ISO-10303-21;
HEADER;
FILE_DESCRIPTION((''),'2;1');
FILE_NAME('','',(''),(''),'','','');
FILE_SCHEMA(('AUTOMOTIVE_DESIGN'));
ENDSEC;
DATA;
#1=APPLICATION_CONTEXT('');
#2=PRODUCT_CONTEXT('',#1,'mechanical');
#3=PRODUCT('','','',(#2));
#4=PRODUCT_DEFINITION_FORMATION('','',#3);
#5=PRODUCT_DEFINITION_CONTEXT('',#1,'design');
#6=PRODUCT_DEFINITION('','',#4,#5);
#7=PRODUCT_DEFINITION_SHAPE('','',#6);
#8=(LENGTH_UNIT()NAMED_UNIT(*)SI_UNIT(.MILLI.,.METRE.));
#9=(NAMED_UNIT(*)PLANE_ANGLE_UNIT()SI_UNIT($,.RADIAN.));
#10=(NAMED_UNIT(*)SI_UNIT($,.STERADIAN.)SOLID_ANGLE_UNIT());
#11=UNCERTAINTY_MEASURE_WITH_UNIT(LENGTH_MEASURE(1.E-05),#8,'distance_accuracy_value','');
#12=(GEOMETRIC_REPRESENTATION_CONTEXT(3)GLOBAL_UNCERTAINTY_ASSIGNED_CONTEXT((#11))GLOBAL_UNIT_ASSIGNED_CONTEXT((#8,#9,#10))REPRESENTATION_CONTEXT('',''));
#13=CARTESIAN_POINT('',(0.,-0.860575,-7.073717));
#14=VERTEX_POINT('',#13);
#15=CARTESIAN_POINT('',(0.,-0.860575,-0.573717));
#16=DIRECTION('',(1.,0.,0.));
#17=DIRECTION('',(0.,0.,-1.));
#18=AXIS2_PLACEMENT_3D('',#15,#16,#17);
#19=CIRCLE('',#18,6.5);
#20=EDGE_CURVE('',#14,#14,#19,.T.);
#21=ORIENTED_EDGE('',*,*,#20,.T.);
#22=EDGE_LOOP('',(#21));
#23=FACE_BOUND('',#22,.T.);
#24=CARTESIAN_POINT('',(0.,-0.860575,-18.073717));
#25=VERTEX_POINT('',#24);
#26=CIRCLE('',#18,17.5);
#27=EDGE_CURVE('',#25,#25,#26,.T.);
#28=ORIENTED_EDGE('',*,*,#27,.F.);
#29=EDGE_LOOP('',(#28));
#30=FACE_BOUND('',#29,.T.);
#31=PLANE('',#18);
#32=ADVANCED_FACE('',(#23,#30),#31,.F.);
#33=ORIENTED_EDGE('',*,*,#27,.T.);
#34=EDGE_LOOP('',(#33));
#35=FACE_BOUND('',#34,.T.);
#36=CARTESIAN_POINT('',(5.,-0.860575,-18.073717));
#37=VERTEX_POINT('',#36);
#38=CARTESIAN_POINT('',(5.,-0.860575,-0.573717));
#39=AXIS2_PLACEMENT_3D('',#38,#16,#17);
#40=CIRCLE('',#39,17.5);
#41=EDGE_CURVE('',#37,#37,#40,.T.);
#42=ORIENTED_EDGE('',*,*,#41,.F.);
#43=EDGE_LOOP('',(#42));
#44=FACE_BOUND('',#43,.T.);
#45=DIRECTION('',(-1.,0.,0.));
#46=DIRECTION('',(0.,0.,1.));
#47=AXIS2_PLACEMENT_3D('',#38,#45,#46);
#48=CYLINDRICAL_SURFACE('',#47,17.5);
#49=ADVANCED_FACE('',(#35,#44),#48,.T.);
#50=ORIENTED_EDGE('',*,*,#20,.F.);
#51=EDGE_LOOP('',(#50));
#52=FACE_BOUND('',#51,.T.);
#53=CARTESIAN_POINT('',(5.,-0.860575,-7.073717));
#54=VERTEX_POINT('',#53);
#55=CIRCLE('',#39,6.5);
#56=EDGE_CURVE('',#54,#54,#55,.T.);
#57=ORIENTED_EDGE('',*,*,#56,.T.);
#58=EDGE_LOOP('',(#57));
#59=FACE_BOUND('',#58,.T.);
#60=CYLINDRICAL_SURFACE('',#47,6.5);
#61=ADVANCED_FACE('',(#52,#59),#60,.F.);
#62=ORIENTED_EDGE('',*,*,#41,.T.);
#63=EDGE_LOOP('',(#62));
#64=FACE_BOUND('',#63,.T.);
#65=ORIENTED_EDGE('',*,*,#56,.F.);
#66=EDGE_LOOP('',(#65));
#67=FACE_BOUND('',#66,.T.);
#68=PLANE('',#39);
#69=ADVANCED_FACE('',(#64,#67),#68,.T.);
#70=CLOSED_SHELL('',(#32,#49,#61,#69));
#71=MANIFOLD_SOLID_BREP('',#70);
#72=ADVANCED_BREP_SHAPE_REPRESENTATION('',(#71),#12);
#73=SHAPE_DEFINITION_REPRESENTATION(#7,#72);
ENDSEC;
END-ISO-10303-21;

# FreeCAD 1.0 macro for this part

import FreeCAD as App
import Part
import Sketcher
from FreeCAD import Vector

doc = App.newDocument("Part")
body = doc.addObject("PartDesign::Body", "Body")

# Sketch on YZ plane
sketch1 = doc.addObject("Sketcher::SketchObject", "Sketch")
body.addObject(sketch1)
sketch1.AttachmentSupport = (doc.YZ_Plane, [""])
sketch1.MapMode = "FlatFace"
sketch1.addGeometry(Part.Circle(Vector(-1, -1, 0), Vector(0, 0, 1), 18), False)
sketch1.addGeometry(Part.Circle(Vector(-1, -1, 0), Vector(0, 0, 1), 6), False)
sketch1.addConstraint(Sketcher.Constraint("Coincident", 1, 3, 0, 3))
sketch1.addConstraint(Sketcher.Constraint("Diameter", 0, 35.0))
sketch1.addConstraint(Sketcher.Constraint("Diameter", 1, 13.0))
sketch1.addConstraint(Sketcher.Constraint("DistanceX", 0, 3, -1, 1, 0.860575))
sketch1.addConstraint(Sketcher.Constraint("DistanceY", 0, 3, -1, 1, 0.573717))
pad1 = doc.addObject("PartDesign::Pad", "Pad")
body.addObject(pad1)
pad1.Profile = sketch1
pad1.Length = 5

doc.recompute()
